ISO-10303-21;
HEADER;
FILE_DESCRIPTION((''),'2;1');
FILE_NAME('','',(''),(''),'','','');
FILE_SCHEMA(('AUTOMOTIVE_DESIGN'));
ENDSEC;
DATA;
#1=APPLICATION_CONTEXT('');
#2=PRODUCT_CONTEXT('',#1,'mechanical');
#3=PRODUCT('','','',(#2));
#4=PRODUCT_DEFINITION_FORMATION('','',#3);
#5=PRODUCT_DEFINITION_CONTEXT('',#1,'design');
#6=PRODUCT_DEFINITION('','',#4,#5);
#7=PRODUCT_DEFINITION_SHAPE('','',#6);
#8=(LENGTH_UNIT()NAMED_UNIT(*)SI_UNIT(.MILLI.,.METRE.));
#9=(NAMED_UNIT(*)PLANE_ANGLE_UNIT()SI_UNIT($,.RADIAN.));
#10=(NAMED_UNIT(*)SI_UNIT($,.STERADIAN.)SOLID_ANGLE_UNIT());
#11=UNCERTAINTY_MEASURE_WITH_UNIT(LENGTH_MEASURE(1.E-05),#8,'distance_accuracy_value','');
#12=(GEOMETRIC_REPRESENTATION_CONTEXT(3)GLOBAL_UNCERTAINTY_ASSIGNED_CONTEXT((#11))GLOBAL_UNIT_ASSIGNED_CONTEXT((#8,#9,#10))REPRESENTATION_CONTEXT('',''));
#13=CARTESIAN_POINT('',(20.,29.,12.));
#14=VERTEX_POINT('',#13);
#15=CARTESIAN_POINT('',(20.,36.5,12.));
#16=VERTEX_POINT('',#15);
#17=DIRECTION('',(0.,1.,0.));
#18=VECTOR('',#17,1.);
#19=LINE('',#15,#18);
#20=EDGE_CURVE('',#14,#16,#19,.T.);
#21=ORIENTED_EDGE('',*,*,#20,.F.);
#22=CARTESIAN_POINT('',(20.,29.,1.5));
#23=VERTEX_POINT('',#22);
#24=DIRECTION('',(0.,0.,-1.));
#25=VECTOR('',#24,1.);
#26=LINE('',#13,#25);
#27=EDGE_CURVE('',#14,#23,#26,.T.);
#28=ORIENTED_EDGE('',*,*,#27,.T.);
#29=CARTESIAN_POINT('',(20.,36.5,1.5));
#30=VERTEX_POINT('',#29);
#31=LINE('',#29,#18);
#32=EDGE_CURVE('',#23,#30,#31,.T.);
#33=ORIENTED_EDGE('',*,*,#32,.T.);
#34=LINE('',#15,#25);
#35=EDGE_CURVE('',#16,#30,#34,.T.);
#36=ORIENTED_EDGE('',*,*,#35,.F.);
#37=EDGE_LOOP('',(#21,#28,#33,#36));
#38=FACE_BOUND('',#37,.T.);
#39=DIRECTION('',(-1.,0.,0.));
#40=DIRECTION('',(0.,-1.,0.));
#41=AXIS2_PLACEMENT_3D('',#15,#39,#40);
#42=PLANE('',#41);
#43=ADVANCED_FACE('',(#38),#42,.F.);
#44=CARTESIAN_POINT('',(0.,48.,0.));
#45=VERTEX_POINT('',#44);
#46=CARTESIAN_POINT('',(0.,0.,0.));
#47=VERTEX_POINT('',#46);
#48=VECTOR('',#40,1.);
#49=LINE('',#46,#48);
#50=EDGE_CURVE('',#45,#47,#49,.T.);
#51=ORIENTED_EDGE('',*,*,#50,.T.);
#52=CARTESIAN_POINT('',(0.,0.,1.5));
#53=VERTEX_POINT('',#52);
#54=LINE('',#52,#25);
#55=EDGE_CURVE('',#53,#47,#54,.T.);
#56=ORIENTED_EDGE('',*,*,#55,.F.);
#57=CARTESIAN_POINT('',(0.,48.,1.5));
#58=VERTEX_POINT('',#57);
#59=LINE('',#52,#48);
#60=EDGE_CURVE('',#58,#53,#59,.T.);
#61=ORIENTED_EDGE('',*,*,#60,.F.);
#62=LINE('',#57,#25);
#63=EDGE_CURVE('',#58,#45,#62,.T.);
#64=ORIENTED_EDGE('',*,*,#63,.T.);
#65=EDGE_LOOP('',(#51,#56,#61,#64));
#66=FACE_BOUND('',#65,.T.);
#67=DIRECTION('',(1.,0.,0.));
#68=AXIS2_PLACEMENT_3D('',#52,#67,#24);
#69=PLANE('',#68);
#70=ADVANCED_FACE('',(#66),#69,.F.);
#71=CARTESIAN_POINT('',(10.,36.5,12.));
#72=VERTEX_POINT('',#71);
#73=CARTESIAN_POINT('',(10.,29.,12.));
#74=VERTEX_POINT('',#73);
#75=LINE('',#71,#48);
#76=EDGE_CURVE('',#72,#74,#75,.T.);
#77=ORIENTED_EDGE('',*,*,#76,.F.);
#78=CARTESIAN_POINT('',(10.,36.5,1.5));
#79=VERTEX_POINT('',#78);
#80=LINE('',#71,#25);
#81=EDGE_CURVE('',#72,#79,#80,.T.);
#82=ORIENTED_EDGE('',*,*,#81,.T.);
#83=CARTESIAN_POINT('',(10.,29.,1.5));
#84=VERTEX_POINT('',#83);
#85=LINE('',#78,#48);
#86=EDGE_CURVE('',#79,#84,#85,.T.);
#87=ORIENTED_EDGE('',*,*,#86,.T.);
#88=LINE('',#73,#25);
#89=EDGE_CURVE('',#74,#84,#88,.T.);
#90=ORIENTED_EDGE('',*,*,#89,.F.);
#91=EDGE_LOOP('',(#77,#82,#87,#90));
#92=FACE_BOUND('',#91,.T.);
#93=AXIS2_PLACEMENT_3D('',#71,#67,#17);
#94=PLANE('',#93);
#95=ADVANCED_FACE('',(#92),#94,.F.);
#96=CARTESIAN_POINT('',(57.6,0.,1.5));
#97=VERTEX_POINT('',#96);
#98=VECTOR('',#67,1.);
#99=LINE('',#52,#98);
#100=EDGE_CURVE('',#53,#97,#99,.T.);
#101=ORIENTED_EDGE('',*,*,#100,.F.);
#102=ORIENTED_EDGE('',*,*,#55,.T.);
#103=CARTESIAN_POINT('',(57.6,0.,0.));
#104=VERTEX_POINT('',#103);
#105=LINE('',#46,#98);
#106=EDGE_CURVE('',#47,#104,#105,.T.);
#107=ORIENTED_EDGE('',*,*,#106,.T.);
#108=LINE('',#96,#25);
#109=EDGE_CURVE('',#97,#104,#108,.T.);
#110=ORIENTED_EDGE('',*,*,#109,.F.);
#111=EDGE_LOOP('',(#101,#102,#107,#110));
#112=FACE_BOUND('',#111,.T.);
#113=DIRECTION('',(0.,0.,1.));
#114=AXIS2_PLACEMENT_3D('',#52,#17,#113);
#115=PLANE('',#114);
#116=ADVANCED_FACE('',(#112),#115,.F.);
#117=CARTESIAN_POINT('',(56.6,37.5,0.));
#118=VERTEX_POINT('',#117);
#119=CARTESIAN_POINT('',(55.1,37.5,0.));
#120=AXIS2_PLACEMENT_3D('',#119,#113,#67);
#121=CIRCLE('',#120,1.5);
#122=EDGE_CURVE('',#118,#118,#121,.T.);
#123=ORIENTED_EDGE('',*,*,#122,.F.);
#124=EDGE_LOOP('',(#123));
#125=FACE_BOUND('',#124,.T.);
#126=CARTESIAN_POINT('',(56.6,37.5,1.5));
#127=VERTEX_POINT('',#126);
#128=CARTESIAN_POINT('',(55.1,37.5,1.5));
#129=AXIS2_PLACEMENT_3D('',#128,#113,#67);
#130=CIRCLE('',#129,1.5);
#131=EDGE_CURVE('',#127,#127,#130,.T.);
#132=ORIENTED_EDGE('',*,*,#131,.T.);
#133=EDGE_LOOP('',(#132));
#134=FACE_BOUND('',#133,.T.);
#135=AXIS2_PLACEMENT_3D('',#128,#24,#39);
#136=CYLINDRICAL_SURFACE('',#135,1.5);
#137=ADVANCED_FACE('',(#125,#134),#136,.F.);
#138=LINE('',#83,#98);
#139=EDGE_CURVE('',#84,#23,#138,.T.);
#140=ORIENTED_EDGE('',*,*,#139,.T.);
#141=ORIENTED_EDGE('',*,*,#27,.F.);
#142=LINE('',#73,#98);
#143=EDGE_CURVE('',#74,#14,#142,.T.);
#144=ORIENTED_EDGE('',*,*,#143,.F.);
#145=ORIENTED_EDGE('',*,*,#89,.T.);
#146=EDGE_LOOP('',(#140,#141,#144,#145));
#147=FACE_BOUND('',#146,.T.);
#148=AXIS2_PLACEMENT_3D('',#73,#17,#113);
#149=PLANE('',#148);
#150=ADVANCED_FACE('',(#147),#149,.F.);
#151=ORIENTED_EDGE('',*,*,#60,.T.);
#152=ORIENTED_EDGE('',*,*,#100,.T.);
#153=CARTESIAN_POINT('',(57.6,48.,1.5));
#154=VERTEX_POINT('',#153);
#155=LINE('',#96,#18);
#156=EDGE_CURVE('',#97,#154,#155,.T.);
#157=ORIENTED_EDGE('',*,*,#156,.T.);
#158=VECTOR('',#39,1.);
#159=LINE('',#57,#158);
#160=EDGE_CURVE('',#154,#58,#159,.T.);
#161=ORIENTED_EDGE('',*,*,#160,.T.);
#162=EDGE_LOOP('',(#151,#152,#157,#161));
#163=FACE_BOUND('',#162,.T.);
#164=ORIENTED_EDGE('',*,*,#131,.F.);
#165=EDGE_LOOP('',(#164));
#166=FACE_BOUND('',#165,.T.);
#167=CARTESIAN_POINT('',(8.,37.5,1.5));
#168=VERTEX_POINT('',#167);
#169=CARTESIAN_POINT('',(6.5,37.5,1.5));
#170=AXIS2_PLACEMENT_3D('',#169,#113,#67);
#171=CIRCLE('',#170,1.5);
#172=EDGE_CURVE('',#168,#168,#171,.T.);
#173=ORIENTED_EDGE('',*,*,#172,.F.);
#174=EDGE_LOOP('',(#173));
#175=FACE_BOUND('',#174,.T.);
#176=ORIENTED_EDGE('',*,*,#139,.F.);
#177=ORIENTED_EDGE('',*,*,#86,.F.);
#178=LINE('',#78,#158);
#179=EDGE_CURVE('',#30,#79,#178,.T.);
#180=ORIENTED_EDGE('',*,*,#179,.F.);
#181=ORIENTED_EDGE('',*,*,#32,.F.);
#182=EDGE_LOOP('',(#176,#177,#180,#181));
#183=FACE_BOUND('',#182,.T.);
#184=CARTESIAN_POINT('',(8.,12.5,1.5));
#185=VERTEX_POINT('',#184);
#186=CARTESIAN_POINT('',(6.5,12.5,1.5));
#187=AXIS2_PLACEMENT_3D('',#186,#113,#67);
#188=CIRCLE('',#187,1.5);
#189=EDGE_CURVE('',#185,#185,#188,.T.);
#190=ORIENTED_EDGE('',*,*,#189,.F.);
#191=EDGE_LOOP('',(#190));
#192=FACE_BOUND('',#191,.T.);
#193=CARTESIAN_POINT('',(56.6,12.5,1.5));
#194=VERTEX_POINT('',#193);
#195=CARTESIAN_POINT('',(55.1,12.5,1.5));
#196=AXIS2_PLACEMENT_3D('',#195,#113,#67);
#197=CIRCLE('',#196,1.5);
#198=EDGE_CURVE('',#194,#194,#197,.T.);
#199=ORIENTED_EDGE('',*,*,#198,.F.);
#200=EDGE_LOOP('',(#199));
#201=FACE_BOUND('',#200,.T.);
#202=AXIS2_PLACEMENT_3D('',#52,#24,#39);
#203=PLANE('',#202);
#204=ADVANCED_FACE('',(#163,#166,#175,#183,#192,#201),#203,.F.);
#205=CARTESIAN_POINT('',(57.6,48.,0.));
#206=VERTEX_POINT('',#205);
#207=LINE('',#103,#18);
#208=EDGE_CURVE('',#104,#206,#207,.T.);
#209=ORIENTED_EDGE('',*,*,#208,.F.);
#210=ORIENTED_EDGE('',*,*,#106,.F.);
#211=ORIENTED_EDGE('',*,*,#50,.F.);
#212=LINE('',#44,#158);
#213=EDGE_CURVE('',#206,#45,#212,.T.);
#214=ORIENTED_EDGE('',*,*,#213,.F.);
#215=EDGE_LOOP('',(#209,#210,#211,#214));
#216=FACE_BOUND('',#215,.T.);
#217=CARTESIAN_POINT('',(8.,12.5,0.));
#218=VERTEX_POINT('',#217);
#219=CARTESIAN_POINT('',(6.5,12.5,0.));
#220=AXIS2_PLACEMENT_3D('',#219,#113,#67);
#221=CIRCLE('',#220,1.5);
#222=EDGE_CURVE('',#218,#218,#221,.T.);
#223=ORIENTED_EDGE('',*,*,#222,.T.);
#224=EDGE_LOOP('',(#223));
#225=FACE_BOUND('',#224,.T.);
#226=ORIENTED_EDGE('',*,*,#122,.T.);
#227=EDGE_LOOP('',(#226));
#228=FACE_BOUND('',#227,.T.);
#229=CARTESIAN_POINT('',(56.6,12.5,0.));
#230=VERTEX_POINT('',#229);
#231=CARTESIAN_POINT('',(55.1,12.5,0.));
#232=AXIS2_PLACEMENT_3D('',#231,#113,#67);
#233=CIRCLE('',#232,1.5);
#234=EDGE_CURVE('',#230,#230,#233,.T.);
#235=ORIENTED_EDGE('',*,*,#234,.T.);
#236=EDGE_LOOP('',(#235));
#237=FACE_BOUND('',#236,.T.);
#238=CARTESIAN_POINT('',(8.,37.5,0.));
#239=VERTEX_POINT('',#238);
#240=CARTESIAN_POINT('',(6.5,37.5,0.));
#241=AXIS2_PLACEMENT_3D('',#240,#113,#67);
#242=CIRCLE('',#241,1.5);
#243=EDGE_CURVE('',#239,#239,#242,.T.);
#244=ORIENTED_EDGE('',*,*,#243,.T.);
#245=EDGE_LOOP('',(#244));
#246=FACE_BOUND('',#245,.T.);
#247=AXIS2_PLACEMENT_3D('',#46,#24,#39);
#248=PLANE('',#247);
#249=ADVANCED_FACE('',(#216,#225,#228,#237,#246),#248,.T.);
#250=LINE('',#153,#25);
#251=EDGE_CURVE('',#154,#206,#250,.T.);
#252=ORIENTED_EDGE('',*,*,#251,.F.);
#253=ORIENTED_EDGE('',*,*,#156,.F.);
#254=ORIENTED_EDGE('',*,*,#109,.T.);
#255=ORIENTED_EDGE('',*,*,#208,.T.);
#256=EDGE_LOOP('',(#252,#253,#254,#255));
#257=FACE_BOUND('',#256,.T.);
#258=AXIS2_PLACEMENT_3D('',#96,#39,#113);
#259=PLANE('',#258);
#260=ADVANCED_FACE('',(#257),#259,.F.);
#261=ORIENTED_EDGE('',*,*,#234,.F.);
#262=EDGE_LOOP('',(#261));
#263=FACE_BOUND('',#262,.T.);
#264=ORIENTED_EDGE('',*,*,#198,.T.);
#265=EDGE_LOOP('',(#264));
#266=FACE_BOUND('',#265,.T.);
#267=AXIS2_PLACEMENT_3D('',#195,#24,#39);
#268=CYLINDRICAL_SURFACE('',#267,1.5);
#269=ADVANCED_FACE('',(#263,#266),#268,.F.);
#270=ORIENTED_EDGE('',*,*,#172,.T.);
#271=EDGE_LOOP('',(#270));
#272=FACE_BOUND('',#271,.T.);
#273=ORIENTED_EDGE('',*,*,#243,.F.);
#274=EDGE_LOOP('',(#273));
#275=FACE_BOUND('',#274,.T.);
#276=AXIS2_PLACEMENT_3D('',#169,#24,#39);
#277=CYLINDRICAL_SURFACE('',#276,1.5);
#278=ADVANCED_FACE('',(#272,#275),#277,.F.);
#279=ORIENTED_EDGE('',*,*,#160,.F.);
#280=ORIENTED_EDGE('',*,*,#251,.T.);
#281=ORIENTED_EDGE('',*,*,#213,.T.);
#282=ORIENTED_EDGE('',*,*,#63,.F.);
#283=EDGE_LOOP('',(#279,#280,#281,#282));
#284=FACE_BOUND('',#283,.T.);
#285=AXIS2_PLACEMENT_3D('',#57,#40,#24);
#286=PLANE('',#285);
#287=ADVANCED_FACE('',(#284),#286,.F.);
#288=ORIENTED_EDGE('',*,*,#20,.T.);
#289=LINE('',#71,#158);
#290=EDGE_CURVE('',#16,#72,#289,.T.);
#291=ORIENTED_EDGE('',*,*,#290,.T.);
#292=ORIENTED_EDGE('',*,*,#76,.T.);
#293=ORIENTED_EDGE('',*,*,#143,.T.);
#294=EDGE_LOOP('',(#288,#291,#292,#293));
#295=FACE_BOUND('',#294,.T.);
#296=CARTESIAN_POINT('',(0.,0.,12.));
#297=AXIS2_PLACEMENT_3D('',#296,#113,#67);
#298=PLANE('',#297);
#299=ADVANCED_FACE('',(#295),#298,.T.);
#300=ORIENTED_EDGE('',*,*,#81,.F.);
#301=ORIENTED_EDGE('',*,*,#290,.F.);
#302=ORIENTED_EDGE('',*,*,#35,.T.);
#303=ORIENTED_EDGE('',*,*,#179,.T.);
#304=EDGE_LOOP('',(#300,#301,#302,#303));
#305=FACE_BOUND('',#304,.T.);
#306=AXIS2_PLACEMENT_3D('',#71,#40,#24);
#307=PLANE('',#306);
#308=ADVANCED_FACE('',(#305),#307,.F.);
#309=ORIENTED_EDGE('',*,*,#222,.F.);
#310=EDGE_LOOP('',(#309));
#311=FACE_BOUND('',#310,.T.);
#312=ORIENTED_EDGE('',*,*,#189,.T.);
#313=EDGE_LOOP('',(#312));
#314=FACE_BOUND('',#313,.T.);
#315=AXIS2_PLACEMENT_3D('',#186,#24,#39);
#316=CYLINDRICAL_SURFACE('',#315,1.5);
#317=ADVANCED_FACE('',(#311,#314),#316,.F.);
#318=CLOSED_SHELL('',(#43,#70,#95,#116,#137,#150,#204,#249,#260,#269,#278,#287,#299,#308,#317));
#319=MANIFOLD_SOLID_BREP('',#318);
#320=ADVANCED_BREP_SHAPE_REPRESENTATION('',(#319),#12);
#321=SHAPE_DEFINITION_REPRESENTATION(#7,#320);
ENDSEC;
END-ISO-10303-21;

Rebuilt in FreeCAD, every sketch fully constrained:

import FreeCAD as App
import Part
import Sketcher

V = App.Vector

doc = App.newDocument("Part")
params = doc.addObject("Spreadsheet::Sheet", "Params")
for row, (alias, value) in enumerate([
    ("sketch1_diameter", "3 mm"),
    ("sketch1_height", "48 mm"),
    ("sketch1_width", "57.6 mm"),
    ("pad1_length", "1.5 mm"),
    ("sketch2_width", "10 mm"),
    ("sketch2_height", "7.5 mm"),
    ("pad2_length", "10.5 mm"),
], start=1):
    params.set(f"A{row}", alias)
    params.set(f"B{row}", "=" + value)
    params.setAlias(f"B{row}", alias)

body = doc.addObject("PartDesign::Body", "Body")

# Sketch on XY plane
sketch1 = body.newObject("Sketcher::SketchObject", "Sketch")
sketch1.AttachmentSupport = (doc.getObject("XY_Plane"), [""])
sketch1.MapMode = "FlatFace"
sketch1.addGeometry([
    Part.LineSegment(V(0, 48, 0), V(0, 0, 0)),  # 0
    Part.LineSegment(V(0, 0, 0), V(57.6, 0, 0)),  # 1
    Part.LineSegment(V(57.6, 0, 0), V(57.6, 48, 0)),  # 2
    Part.LineSegment(V(57.6, 48, 0), V(0, 48, 0)),  # 3
    Part.Circle(V(6.5, 12.5, 0), V(0, 0, 1), 1.5),  # 4
    Part.Circle(V(55.1, 12.5, 0), V(0, 0, 1), 1.5),  # 5
    Part.Circle(V(6.5, 37.5, 0), V(0, 0, 1), 1.5),  # 6
    Part.Circle(V(55.1, 37.5, 0), V(0, 0, 1), 1.5),  # 7
], False)
sketch1.addConstraint([
    Sketcher.Constraint("Coincident", 0, 2, 1, 1),
    Sketcher.Constraint("Coincident", 1, 2, 2, 1),
    Sketcher.Constraint("Coincident", 2, 2, 3, 1),
    Sketcher.Constraint("Coincident", 3, 2, 0, 1),
    Sketcher.Constraint("Vertical", 0),
    Sketcher.Constraint("Horizontal", 1),
    Sketcher.Constraint("Vertical", 2),
    Sketcher.Constraint("Horizontal", 3),
    Sketcher.Constraint("Coincident", 0, 2, -1, 1),
    Sketcher.Constraint("Equal", 4, 5),
    Sketcher.Constraint("Equal", 5, 6),
    Sketcher.Constraint("Equal", 6, 7),
    Sketcher.Constraint("Horizontal", 4, 3, 5, 3),
    Sketcher.Constraint("Horizontal", 6, 3, 7, 3),
    Sketcher.Constraint("Vertical", 4, 3, 6, 3),
    Sketcher.Constraint("Vertical", 5, 3, 7, 3),
    Sketcher.Constraint("Diameter", 4, 3.0),
    Sketcher.Constraint("DistanceY", 0, 2, 0, 1, 48.0),
    Sketcher.Constraint("DistanceX", 1, 1, 1, 2, 57.6),
    Sketcher.Constraint("DistanceY", 4, 3, 6, 3, 25.0),
    Sketcher.Constraint("DistanceX", -1, 1, 4, 3, 6.5),
    Sketcher.Constraint("DistanceY", -1, 1, 4, 3, 12.5),
    Sketcher.Constraint("DistanceX", -1, 1, 5, 3, 55.1),
])
sketch1.setExpression("Constraints[16]", "Params.sketch1_diameter")
sketch1.setExpression("Constraints[17]", "Params.sketch1_height")
sketch1.setExpression("Constraints[18]", "Params.sketch1_width")
pad1 = body.newObject("PartDesign::Pad", "Pad")
pad1.Profile = sketch1
pad1.setExpression("Length", "Params.pad1_length")

# Sketch on XY plane
sketch2 = body.newObject("Sketcher::SketchObject", "Sketch001")
sketch2.AttachmentSupport = (doc.getObject("XY_Plane"), [""])
sketch2.MapMode = "FlatFace"
sketch2.AttachmentOffset = App.Placement(V(0, 0, 1.5), App.Rotation())
sketch2.addGeometry([
    Part.LineSegment(V(10, 36, 0), V(10, 29, 0)),
    Part.LineSegment(V(10, 29, 0), V(20, 29, 0)),
    Part.LineSegment(V(20, 29, 0), V(20, 36, 0)),
    Part.LineSegment(V(20, 36, 0), V(10, 36, 0)),
], False)
sketch2.addConstraint([
    Sketcher.Constraint("Coincident", 0, 2, 1, 1),
    Sketcher.Constraint("Coincident", 1, 2, 2, 1),
    Sketcher.Constraint("Coincident", 2, 2, 3, 1),
    Sketcher.Constraint("Coincident", 3, 2, 0, 1),
    Sketcher.Constraint("Vertical", 0),
    Sketcher.Constraint("Horizontal", 1),
    Sketcher.Constraint("Vertical", 2),
    Sketcher.Constraint("Horizontal", 3),
    Sketcher.Constraint("DistanceX", 1, 1, 1, 2, 10.0),
    Sketcher.Constraint("DistanceY", 0, 2, 0, 1, 7.5),
    Sketcher.Constraint("DistanceX", -1, 1, 0, 2, 10.0),
    Sketcher.Constraint("DistanceY", -1, 1, 0, 2, 29.0),
])
sketch2.setExpression("Constraints[8]", "Params.sketch2_width")
sketch2.setExpression("Constraints[9]", "Params.sketch2_height")
pad2 = body.newObject("PartDesign::Pad", "Pad001")
pad2.Profile = sketch2
pad2.setExpression("Length", "Params.pad2_length")

doc.recompute()
